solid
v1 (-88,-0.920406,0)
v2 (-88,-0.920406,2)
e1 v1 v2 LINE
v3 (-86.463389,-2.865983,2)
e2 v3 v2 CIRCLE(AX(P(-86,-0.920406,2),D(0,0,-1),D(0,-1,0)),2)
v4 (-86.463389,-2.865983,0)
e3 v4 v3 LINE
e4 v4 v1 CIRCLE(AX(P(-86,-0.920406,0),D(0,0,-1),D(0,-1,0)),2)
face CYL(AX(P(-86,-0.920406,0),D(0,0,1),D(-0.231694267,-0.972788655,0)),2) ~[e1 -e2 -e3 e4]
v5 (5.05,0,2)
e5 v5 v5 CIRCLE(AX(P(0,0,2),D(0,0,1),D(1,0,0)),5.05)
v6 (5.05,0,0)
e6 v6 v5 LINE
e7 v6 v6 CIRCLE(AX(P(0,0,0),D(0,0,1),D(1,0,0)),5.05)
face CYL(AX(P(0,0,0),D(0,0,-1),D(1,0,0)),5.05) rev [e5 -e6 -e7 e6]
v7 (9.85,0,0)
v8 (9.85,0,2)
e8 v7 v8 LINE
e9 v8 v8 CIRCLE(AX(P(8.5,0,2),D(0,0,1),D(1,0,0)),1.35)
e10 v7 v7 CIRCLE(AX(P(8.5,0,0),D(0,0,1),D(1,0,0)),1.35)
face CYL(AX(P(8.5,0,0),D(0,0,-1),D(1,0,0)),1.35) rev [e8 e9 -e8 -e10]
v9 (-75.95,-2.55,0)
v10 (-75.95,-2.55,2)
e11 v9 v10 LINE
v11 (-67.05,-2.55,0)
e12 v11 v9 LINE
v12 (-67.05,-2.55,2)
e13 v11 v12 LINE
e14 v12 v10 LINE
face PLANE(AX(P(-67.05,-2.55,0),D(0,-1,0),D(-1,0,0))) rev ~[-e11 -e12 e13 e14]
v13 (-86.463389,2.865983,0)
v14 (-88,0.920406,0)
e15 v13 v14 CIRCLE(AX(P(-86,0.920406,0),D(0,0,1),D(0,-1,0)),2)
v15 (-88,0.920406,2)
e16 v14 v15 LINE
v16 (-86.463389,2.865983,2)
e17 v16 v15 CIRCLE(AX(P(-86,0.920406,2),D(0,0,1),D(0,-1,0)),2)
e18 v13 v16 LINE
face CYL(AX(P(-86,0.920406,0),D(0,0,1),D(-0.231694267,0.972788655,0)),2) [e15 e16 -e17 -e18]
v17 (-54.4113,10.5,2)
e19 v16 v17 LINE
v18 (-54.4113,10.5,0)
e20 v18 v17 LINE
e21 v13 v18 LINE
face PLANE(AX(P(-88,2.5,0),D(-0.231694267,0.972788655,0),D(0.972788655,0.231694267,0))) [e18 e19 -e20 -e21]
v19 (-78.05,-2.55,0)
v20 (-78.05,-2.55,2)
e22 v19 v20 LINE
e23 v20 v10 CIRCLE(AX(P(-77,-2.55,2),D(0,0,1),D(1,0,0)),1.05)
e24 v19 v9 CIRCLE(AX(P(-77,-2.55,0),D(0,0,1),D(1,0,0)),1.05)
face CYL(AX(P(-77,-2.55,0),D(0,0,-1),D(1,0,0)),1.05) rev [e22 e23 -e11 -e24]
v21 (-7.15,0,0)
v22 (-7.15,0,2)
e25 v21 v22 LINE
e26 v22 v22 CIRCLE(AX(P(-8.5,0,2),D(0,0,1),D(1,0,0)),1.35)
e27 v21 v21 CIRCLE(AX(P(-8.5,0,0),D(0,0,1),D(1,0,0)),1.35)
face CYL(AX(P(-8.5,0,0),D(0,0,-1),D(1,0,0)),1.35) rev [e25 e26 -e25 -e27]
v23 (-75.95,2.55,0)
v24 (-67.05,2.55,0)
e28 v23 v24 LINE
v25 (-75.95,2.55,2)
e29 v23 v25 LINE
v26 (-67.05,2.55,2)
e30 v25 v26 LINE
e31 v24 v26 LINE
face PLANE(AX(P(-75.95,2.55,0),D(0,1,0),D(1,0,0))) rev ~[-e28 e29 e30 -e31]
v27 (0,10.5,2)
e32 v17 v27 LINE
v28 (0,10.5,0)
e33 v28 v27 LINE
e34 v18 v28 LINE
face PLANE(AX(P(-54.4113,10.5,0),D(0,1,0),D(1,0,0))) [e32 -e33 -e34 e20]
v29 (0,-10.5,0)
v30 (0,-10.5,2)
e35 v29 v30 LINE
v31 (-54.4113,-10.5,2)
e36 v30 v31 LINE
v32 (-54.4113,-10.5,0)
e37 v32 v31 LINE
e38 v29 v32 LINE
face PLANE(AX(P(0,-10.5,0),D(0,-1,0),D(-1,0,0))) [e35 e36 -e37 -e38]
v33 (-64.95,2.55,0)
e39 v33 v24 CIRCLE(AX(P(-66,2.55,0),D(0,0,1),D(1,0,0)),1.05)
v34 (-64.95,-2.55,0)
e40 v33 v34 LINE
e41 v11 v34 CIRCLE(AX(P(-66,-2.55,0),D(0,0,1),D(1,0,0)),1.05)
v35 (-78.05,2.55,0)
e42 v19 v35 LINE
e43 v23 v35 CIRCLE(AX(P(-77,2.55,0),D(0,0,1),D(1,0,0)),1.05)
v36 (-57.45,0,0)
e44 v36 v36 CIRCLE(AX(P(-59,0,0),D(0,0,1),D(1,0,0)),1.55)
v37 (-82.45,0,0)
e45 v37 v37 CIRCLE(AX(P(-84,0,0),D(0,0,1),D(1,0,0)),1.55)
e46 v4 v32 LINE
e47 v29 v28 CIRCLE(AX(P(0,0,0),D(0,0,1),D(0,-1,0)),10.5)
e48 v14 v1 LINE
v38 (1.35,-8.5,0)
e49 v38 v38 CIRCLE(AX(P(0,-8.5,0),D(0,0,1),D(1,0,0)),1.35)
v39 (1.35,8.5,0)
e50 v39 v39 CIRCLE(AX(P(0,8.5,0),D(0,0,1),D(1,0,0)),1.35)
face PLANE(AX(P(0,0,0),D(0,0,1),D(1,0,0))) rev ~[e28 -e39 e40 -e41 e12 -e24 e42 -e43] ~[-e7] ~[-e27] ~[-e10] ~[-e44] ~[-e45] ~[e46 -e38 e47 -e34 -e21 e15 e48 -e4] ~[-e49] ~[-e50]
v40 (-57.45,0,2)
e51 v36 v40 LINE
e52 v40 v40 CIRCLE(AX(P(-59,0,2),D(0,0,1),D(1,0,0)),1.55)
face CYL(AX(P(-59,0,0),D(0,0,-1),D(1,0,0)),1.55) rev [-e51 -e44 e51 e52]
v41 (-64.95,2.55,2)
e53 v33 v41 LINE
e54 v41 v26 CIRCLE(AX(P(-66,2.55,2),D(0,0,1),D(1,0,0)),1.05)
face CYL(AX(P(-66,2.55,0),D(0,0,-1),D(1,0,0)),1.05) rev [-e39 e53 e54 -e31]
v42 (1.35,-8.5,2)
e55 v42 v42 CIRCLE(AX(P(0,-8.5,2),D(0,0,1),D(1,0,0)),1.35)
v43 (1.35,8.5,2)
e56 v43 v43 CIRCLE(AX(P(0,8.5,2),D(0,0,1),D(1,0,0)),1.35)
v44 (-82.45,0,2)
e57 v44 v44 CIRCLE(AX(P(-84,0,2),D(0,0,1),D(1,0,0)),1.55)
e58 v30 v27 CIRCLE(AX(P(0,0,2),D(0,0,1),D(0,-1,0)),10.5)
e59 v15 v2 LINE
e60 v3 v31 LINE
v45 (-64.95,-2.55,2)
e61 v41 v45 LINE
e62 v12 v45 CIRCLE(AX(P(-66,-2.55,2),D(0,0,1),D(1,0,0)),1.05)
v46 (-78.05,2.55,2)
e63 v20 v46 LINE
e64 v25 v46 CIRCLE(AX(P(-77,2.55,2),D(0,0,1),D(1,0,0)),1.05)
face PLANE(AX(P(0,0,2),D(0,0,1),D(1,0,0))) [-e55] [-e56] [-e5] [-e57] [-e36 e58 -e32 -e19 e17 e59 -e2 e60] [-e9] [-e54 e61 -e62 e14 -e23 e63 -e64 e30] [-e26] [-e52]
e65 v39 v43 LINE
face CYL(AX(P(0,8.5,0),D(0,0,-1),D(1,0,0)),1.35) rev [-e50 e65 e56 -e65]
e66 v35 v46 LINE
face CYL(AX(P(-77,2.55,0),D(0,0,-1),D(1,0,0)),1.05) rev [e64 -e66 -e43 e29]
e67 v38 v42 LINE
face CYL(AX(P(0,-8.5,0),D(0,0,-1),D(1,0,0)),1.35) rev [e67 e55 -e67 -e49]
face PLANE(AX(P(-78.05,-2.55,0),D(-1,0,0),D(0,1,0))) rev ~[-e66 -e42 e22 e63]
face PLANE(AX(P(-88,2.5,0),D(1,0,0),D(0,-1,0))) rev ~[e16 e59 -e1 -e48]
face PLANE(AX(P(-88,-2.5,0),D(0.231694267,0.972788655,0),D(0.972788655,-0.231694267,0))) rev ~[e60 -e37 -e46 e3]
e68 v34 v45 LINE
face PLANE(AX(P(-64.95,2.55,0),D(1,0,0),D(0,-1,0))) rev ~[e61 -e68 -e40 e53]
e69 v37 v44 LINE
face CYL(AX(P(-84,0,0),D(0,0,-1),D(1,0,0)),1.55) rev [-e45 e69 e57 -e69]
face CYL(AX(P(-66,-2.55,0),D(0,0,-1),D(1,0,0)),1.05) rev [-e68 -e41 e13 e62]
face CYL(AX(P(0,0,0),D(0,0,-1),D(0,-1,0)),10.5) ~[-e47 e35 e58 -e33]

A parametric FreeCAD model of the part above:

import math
import FreeCAD as App
import Part
import Sketcher
from FreeCAD import Vector
Q = App.Units.Quantity


def edges_at(feature, points):
    """Names of the edges that pass closest to the given points."""
    edges = feature.Shape.Edges
    near = lambda p: min(range(len(edges)), key=lambda i: edges[i].distToShape(Part.Vertex(*p))[0])
    return sorted({f"Edge{near(p) + 1}" for p in points})

doc = App.newDocument("Part")
params = doc.addObject("Spreadsheet::Sheet", "Params")
for row, (alias, value) in enumerate([
    ("sketch1_diameter", "2.7 mm"),
    ("sketch1_diameter2", "3.1 mm"),
    ("sketch1_diameter3", "10.1 mm"),
    ("sketch1_radius", "10.5 mm"),
    ("sketch1_height", "5 mm"),
    ("pad1_length", "2 mm"),
    ("fillet_radius", "2 mm"),
], start=1):
    params.set(f"A{row}", alias)
    params.set(f"B{row}", "=" + value)
    params.setAlias(f"B{row}", alias)

body = doc.addObject("PartDesign::Body", "Body")

sketch1 = doc.addObject("Sketcher::SketchObject", "Sketch")
body.addObject(sketch1)
sketch1.AttachmentSupport = (doc.XY_Plane, [""])
sketch1.MapMode = "FlatFace"
sketch1.addGeometry(Part.LineSegment(Vector(-54.4113, 10.5, 0), Vector(-88, 2.5, 0)), False)
sketch1.addGeometry(Part.LineSegment(Vector(-88, 2.5, 0), Vector(-88, -2.5, 0)), False)
sketch1.addGeometry(Part.LineSegment(Vector(-88, -2.5, 0), Vector(-54.4113, -10.5, 0)), False)
sketch1.addGeometry(Part.LineSegment(Vector(-54.4113, -10.5, 0), Vector(0, -10.5, 0)), False)
sketch1.addGeometry(Part.ArcOfCircle(Part.Circle(Vector(0, 0, 0), Vector(0, 0, 1), 10.5), math.radians(-90), math.radians(90)), False)
sketch1.addGeometry(Part.LineSegment(Vector(0, 10.5, 0), Vector(-54.4113, 10.5, 0)), False)
sketch1.addGeometry(Part.Circle(Vector(0, -8.5, 0), Vector(0, 0, 1), 1.35), False)
sketch1.addGeometry(Part.Circle(Vector(-84, 0, 0), Vector(0, 0, 1), 1.55), False)
sketch1.addGeometry(Part.LineSegment(Vector(-67.05, -2.55, 0), Vector(-75.95, -2.55, 0)), False)
sketch1.addGeometry(Part.ArcOfCircle(Part.Circle(Vector(-77, -2.55, 0), Vector(0, 0, 1), 1.05), math.radians(180), math.radians(360)), False)
sketch1.addGeometry(Part.LineSegment(Vector(-78.05, -2.55, 0), Vector(-78.05, 2.55, 0)), False)
sketch1.addGeometry(Part.ArcOfCircle(Part.Circle(Vector(-77, 2.55, 0), Vector(0, 0, 1), 1.05), math.radians(0), math.radians(180)), False)
sketch1.addGeometry(Part.LineSegment(Vector(-75.95, 2.55, 0), Vector(-67.05, 2.55, 0)), False)
sketch1.addGeometry(Part.ArcOfCircle(Part.Circle(Vector(-66, 2.55, 0), Vector(0, 0, 1), 1.05), math.radians(0), math.radians(180)), False)
sketch1.addGeometry(Part.LineSegment(Vector(-64.95, 2.55, 0), Vector(-64.95, -2.55, 0)), False)
sketch1.addGeometry(Part.ArcOfCircle(Part.Circle(Vector(-66, -2.55, 0), Vector(0, 0, 1), 1.05), math.radians(180), math.radians(360)), False)
sketch1.addGeometry(Part.Circle(Vector(-59, 0, 0), Vector(0, 0, 1), 1.55), False)
sketch1.addGeometry(Part.Circle(Vector(-8.5, 0, 0), Vector(0, 0, 1), 1.35), False)
sketch1.addGeometry(Part.Circle(Vector(0, 0, 0), Vector(0, 0, 1), 5.05), False)
sketch1.addGeometry(Part.Circle(Vector(8.5, 0, 0), Vector(0, 0, 1), 1.35), False)
sketch1.addGeometry(Part.Circle(Vector(0, 8.5, 0), Vector(0, 0, 1), 1.35), False)
sketch1.addConstraint(Sketcher.Constraint("Coincident", 0, 2, 1, 1))
sketch1.addConstraint(Sketcher.Constraint("Coincident", 1, 2, 2, 1))
sketch1.addConstraint(Sketcher.Constraint("Coincident", 2, 2, 3, 1))
sketch1.addConstraint(Sketcher.Constraint("Tangent", 3, 2, 4, 1))
sketch1.addConstraint(Sketcher.Constraint("Tangent", 4, 2, 5, 1))
sketch1.addConstraint(Sketcher.Constraint("Coincident", 5, 2, 0, 1))
sketch1.addConstraint(Sketcher.Constraint("Coincident", 8, 2, 9, 2))
sketch1.addConstraint(Sketcher.Constraint("Tangent", 9, 1, 10, 1))
sketch1.addConstraint(Sketcher.Constraint("Tangent", 10, 2, 11, 2))
sketch1.addConstraint(Sketcher.Constraint("Coincident", 11, 1, 12, 1))
sketch1.addConstraint(Sketcher.Constraint("Coincident", 12, 2, 13, 2))
sketch1.addConstraint(Sketcher.Constraint("Tangent", 13, 1, 14, 1))
sketch1.addConstraint(Sketcher.Constraint("Tangent", 14, 2, 15, 2))
sketch1.addConstraint(Sketcher.Constraint("Coincident", 15, 1, 8, 1))
sketch1.addConstraint(Sketcher.Constraint("Vertical", 1))
sketch1.addConstraint(Sketcher.Constraint("Horizontal", 3))
sketch1.addConstraint(Sketcher.Constraint("Horizontal", 5))
sketch1.addConstraint(Sketcher.Constraint("Horizontal", 8))
sketch1.addConstraint(Sketcher.Constraint("Vertical", 10))
sketch1.addConstraint(Sketcher.Constraint("Horizontal", 12))
sketch1.addConstraint(Sketcher.Constraint("Vertical", 14))
sketch1.addConstraint(Sketcher.Constraint("Coincident", 4, 3, -1, 1))
sketch1.addConstraint(Sketcher.Constraint("Coincident", 18, 3, -1, 1))
sketch1.addConstraint(Sketcher.Constraint("Equal", 9, 11))
sketch1.addConstraint(Sketcher.Constraint("Equal", 11, 13))
sketch1.addConstraint(Sketcher.Constraint("Equal", 13, 15))
sketch1.addConstraint(Sketcher.Constraint("Equal", 7, 16))
sketch1.addConstraint(Sketcher.Constraint("Equal", 6, 17))
sketch1.addConstraint(Sketcher.Constraint("Equal", 17, 19))
sketch1.addConstraint(Sketcher.Constraint("Equal", 19, 20))
sketch1.addConstraint(Sketcher.Constraint("Symmetric", 17, 3, 19, 3, -1, 1))
sketch1.addConstraint(Sketcher.Constraint("Symmetric", 6, 3, 20, 3, -1, 1))
sketch1.addConstraint(Sketcher.Constraint("PointOnObject", 6, 3, -2))
sketch1.addConstraint(Sketcher.Constraint("PointOnObject", 7, 3, -1))
sketch1.addConstraint(Sketcher.Constraint("PointOnObject", 16, 3, -1))
sketch1.addConstraint(Sketcher.Constraint("PointOnObject", 17, 3, -1))
sketch1.addConstraint(Sketcher.Constraint("Horizontal", 11, 3, 13, 3))
sketch1.addConstraint(Sketcher.Constraint("Horizontal", 9, 3, 15, 3))
sketch1.addConstraint(Sketcher.Constraint("Horizontal", 15, 3, 8, 2))
sketch1.addConstraint(Sketcher.Constraint("Horizontal", 10, 2, 11, 1))
sketch1.addConstraint(Sketcher.Constraint("Vertical", 2, 2, 5, 2))
sketch1.addConstraint(Sketcher.Constraint("Equal", 0, 2))
sketch1.addConstraint(Sketcher.Constraint("Diameter", 6, Q("2.7 mm")))
sketch1.addConstraint(Sketcher.Constraint("Diameter", 7, Q("3.1 mm")))
sketch1.addConstraint(Sketcher.Constraint("Diameter", 18, Q("10.1 mm")))
sketch1.addConstraint(Sketcher.Constraint("Radius", 4, Q("10.5 mm")))
sketch1.addConstraint(Sketcher.Constraint("DistanceY", 1, 2, 1, 1, Q("5 mm")))
sketch1.addConstraint(Sketcher.Constraint("Radius", 9, Q("1.05 mm")))
sketch1.addConstraint(Sketcher.Constraint("DistanceX", 7, 3, 16, 3, Q("25 mm")))
sketch1.addConstraint(Sketcher.Constraint("DistanceX", 0, 2, 7, 3, Q("4 mm")))
sketch1.addConstraint(Sketcher.Constraint("DistanceY", 6, 3, -1, 1, Q("8.5 mm")))
sketch1.addConstraint(Sketcher.Constraint("DistanceX", 17, 3, -1, 1, Q("8.5 mm")))
sketch1.addConstraint(Sketcher.Constraint("DistanceY", 0, 2, 11, 3, Q("0.05 mm")))
sketch1.addConstraint(Sketcher.Constraint("DistanceY", 9, 3, 1, 2, Q("0.05 mm")))
sketch1.addConstraint(Sketcher.Constraint("DistanceX", 8, 2, 8, 1, Q("8.9 mm")))
sketch1.addConstraint(Sketcher.Constraint("DistanceX", 7, 3, -1, 1, Q("84 mm")))
sketch1.addConstraint(Sketcher.Constraint("DistanceX", 9, 3, -1, 1, Q("77 mm")))
sketch1.addConstraint(Sketcher.Constraint("DistanceX", 3, 1, 3, 2, Q("54.4113 mm")))
sketch1.setExpression("Constraints[42]", "Params.sketch1_diameter")
sketch1.setExpression("Constraints[43]", "Params.sketch1_diameter2")
sketch1.setExpression("Constraints[44]", "Params.sketch1_diameter3")
sketch1.setExpression("Constraints[45]", "Params.sketch1_radius")
sketch1.setExpression("Constraints[46]", "Params.sketch1_height")
pad1 = doc.addObject("PartDesign::Pad", "Pad")
body.addObject(pad1)
pad1.Profile = sketch1
pad1.setExpression("Length", "Params.pad1_length")
doc.recompute()

fillet = doc.addObject("PartDesign::Fillet", "Fillet")
body.addObject(fillet)
fillet.Base = (pad1, edges_at(pad1, [(-88, 2.5, 1), (-88, -2.5, 1)]))
fillet.setExpression("Radius", "Params.fillet_radius")

doc.recompute()
